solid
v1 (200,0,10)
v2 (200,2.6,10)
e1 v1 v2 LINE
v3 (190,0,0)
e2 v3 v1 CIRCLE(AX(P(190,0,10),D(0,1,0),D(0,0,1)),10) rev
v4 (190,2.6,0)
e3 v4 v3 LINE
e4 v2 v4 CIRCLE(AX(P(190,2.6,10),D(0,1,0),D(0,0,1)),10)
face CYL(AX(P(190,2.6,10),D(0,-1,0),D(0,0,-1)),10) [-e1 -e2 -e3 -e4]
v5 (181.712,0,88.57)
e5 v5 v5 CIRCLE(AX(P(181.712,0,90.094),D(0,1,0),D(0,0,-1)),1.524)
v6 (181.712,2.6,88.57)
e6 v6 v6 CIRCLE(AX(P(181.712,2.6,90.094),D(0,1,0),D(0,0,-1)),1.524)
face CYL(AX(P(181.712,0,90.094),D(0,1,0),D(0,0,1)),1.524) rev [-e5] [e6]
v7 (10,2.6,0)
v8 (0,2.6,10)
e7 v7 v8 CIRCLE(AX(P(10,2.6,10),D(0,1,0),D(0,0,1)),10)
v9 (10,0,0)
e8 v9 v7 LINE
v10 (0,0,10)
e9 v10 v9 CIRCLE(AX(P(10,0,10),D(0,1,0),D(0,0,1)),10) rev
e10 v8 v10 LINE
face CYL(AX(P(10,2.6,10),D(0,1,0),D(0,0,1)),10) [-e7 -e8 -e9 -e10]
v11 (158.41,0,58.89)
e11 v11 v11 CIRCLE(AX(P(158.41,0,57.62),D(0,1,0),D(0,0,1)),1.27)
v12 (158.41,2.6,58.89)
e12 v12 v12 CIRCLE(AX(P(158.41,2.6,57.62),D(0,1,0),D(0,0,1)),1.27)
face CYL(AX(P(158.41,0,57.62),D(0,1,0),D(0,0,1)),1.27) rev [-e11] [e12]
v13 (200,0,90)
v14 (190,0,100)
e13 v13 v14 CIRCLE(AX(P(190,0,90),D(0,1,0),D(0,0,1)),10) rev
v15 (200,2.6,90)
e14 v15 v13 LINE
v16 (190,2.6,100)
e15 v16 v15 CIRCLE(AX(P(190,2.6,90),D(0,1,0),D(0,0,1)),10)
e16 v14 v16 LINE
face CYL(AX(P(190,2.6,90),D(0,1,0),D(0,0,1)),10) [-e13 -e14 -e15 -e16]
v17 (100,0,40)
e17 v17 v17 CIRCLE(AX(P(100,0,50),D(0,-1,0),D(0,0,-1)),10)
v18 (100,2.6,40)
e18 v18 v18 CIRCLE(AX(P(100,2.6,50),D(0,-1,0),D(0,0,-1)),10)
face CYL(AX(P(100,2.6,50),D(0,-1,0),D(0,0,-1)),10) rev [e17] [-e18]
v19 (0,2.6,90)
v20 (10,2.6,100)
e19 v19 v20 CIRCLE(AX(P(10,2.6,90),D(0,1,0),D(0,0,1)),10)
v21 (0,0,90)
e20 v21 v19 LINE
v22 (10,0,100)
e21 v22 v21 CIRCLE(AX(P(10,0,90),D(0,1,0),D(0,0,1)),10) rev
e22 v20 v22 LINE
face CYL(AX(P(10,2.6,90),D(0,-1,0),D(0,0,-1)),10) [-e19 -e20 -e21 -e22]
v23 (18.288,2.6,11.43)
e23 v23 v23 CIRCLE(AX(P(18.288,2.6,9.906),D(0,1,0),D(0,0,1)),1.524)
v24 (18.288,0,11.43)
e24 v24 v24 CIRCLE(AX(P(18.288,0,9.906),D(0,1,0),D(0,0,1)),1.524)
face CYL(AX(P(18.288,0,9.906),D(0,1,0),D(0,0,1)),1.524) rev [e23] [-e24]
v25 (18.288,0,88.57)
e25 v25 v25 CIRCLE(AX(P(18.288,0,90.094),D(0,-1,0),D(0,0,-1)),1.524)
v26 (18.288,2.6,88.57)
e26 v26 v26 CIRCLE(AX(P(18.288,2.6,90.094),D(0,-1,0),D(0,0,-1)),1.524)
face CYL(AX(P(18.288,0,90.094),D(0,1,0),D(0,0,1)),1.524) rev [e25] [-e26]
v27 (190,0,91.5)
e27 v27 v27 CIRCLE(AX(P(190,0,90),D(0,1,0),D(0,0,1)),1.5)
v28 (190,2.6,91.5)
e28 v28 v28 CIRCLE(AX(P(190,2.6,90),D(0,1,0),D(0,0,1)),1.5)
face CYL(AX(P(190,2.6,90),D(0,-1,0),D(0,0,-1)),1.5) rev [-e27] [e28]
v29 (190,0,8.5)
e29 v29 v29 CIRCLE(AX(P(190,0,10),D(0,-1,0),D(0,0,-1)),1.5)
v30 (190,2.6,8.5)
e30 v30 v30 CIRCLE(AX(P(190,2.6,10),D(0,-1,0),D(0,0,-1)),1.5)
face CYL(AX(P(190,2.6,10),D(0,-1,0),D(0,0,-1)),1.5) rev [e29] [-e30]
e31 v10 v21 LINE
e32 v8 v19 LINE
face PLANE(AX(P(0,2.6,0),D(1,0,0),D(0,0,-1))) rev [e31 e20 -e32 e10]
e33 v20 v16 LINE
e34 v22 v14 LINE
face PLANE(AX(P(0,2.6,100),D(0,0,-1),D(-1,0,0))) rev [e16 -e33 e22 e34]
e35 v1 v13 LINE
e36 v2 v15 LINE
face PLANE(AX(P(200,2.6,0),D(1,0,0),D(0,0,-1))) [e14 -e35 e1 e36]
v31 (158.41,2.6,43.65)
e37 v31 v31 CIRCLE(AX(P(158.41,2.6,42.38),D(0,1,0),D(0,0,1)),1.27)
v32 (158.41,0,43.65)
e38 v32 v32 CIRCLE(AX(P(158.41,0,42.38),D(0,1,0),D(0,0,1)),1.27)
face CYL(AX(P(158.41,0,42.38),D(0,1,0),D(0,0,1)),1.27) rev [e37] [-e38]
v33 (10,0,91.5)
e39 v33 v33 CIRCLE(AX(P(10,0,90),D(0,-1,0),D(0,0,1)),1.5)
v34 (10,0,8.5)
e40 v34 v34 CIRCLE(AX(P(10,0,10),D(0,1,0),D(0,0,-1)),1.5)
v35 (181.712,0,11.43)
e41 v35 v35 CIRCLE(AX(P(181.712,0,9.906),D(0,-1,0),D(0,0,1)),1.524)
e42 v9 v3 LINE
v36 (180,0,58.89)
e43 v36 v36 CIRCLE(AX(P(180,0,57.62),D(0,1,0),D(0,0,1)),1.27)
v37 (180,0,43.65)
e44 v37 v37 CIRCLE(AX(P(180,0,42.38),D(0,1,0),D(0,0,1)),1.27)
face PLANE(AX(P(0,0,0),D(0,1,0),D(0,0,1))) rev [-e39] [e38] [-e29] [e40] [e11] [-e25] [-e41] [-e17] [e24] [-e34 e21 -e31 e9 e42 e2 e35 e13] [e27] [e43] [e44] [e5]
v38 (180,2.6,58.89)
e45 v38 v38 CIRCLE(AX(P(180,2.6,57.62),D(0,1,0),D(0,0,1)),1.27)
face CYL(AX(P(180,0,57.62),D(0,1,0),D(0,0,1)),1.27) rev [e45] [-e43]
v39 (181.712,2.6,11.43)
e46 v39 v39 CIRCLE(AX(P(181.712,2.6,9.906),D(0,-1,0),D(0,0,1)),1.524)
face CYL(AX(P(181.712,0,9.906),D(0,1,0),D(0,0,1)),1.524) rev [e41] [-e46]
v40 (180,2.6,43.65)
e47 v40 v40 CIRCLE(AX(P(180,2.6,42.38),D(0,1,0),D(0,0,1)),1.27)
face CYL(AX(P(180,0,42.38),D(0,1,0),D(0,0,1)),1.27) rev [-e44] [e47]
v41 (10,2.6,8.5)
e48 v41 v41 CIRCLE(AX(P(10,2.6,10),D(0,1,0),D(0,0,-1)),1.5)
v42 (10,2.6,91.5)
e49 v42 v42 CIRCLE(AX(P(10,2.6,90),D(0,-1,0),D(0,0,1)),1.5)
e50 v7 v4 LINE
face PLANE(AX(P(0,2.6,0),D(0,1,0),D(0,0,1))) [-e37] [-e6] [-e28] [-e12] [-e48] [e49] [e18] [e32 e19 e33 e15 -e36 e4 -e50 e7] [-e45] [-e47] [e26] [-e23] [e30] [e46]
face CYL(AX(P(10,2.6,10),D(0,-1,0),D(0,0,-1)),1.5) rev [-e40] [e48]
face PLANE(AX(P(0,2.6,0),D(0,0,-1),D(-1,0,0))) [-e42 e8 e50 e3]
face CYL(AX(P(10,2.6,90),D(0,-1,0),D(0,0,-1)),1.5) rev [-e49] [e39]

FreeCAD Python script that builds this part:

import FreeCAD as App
import Part
import Sketcher
Q = App.Units.Quantity


def edges_at(feature, points):
    """Names of the edges that pass closest to the given points."""
    edges = feature.Shape.Edges
    near = lambda p: min(range(len(edges)), key=lambda i: edges[i].distToShape(Part.Vertex(*p))[0])
    return sorted({f"Edge{near(p) + 1}" for p in points})


def add_polygon(sketch, points):
    """Adds a closed chain of lines whose ends are joined by coincident constraints."""
    first, n = sketch.GeometryCount, len(points)
    for a, b in zip(points, points[1:] + points[:1]):
        sketch.addGeometry(Part.LineSegment(App.Vector(*a, 0), App.Vector(*b, 0)), False)
    for i in range(n):
        sketch.addConstraint(Sketcher.Constraint("Coincident", first + i, 2, first + (i + 1) % n, 1))

doc = App.newDocument("Part")
body = doc.addObject("PartDesign::Body", "Body")

# Sketch on XZ plane
sketch1 = body.newObject("Sketcher::SketchObject", "Sketch")
sketch1.AttachmentSupport = (doc.getObject("XZ_Plane"), [""])
sketch1.MapMode = "FlatFace"
add_polygon(sketch1, [(0, 0), (0, 100), (200, 100), (200, 0)])  # lines 0-3
sketch1.addConstraint(Sketcher.Constraint("Vertical", 0))
sketch1.addConstraint(Sketcher.Constraint("Horizontal", 1))
sketch1.addConstraint(Sketcher.Constraint("Vertical", 2))
sketch1.addConstraint(Sketcher.Constraint("Horizontal", 3))
sketch1.addConstraint(Sketcher.Constraint("Coincident", 3, 2, -1, 1))
sketch1.addConstraint(Sketcher.Constraint("DistanceX", 1, 1, 1, 2, Q("200 mm")))
sketch1.addConstraint(Sketcher.Constraint("DistanceY", 0, 1, 0, 2, Q("100 mm")))
pad1 = body.newObject("PartDesign::Pad", "Pad")
pad1.Profile = sketch1
pad1.Length = 2.6
pad1.Reversed = True
doc.recompute()

fillet = body.newObject("PartDesign::Fillet", "Fillet")
fillet.Base = (pad1, edges_at(pad1, [
    (0, 1.3, 0),
    (200, 1.3, 0),
    (200, 1.3, 100),
    (0, 1.3, 100),
]))
fillet.Radius = 10

# Sketch on XZ plane
sketch2 = body.newObject("Sketcher::SketchObject", "Sketch001")
sketch2.AttachmentSupport = (doc.getObject("XZ_Plane"), [""])
sketch2.MapMode = "FlatFace"
sketch2.addGeometry(Part.Circle(App.Vector(190, 10, 0), App.Vector(0, 0, 1), 1.5), False)
sketch2.addConstraint(Sketcher.Constraint("Diameter", 0, Q("3 mm")))
sketch2.addConstraint(Sketcher.Constraint("DistanceX", -1, 1, 0, 3, Q("190 mm")))
sketch2.addConstraint(Sketcher.Constraint("DistanceY", -1, 1, 0, 3, Q("10 mm")))
pocket1 = body.newObject("PartDesign::Pocket", "Pocket")
pocket1.Profile = sketch2
pocket1.Length = 2.6
doc.recompute()

datumplane = body.newObject("PartDesign::Plane", "DatumPlane")
datumplane.AttachmentSupport = (doc.getObject("YZ_Plane"), [""])
datumplane.MapMode = "FlatFace"
datumplane.AttachmentOffset = App.Placement(App.Vector(0, 0, 100), App.Rotation())
mirrored = body.newObject("PartDesign::Mirrored", "Mirrored")
mirrored.Originals = [pocket1]
mirrored.MirrorPlane = (datumplane, [""])
body.Tip = mirrored
doc.recompute()

datumplane2 = body.newObject("PartDesign::Plane", "DatumPlane001")
datumplane2.AttachmentSupport = (doc.getObject("XY_Plane"), [""])
datumplane2.MapMode = "FlatFace"
datumplane2.AttachmentOffset = App.Placement(App.Vector(0, 0, 50), App.Rotation())
mirrored2 = body.newObject("PartDesign::Mirrored", "Mirrored001")
mirrored2.Originals = [pocket1]
mirrored2.MirrorPlane = (datumplane2, [""])
body.Tip = mirrored2

# Sketch on XZ plane
sketch3 = body.newObject("Sketcher::SketchObject", "Sketch002")
sketch3.AttachmentSupport = (doc.getObject("XZ_Plane"), [""])
sketch3.MapMode = "FlatFace"
sketch3.addGeometry(Part.Circle(App.Vector(10, 90, 0), App.Vector(0, 0, 1), 1.5), False)
sketch3.addConstraint(Sketcher.Constraint("Diameter", 0, Q("3 mm")))
sketch3.addConstraint(Sketcher.Constraint("DistanceX", -1, 1, 0, 3, Q("10 mm")))
sketch3.addConstraint(Sketcher.Constraint("DistanceY", -1, 1, 0, 3, Q("90 mm")))
pocket2 = body.newObject("PartDesign::Pocket", "Pocket001")
pocket2.Profile = sketch3
pocket2.Length = 2.6

# Sketch on XZ plane
sketch4 = body.newObject("Sketcher::SketchObject", "Sketch003")
sketch4.AttachmentSupport = (doc.getObject("XZ_Plane"), [""])
sketch4.MapMode = "FlatFace"
sketch4.addGeometry(Part.Circle(App.Vector(100, 50, 0), App.Vector(0, 0, 1), 10), False)
sketch4.addConstraint(Sketcher.Constraint("Diameter", 0, Q("20 mm")))
sketch4.addConstraint(Sketcher.Constraint("DistanceX", -1, 1, 0, 3, Q("100 mm")))
sketch4.addConstraint(Sketcher.Constraint("DistanceY", -1, 1, 0, 3, Q("50 mm")))
pocket3 = body.newObject("PartDesign::Pocket", "Pocket002")
pocket3.Profile = sketch4
pocket3.Type = "ThroughAll"

# Sketch on XZ plane
sketch5 = body.newObject("Sketcher::SketchObject", "Sketch004")
sketch5.AttachmentSupport = (doc.getObject("XZ_Plane"), [""])
sketch5.MapMode = "FlatFace"
sketch5.AttachmentOffset = App.Placement(App.Vector(0, 0, -2.6), App.Rotation())
sketch5.addGeometry(Part.Circle(App.Vector(158.4, 42.4, 0), App.Vector(0, 0, 1), 1.3), False)
sketch5.addGeometry(Part.Circle(App.Vector(180, 42.4, 0), App.Vector(0, 0, 1), 1.3), False)
sketch5.addGeometry(Part.Circle(App.Vector(158.4, 57.6, 0), App.Vector(0, 0, 1), 1.3), False)
sketch5.addGeometry(Part.Circle(App.Vector(180, 57.6, 0), App.Vector(0, 0, 1), 1.3), False)
sketch5.addConstraint(Sketcher.Constraint("Equal", 0, 1))
sketch5.addConstraint(Sketcher.Constraint("Equal", 1, 2))
sketch5.addConstraint(Sketcher.Constraint("Equal", 2, 3))
sketch5.addConstraint(Sketcher.Constraint("Horizontal", 0, 3, 1, 3))
sketch5.addConstraint(Sketcher.Constraint("Horizontal", 2, 3, 3, 3))
sketch5.addConstraint(Sketcher.Constraint("Vertical", 0, 3, 2, 3))
sketch5.addConstraint(Sketcher.Constraint("Vertical", 1, 3, 3, 3))
sketch5.addConstraint(Sketcher.Constraint("Diameter", 0, Q("2.54 mm")))
sketch5.addConstraint(Sketcher.Constraint("DistanceX", -1, 1, 1, 3, Q("180 mm")))
sketch5.addConstraint(Sketcher.Constraint("DistanceX", -1, 1, 0, 3, Q("158.41 mm")))
sketch5.addConstraint(Sketcher.Constraint("DistanceY", -1, 1, 0, 3, Q("42.38 mm")))
sketch5.addConstraint(Sketcher.Constraint("DistanceY", -1, 1, 2, 3, Q("57.62 mm")))
pocket4 = body.newObject("PartDesign::Pocket", "Pocket003")
pocket4.Profile = sketch5
pocket4.Type = "ThroughAll"
pocket4.Reversed = True

# Sketch on XZ plane
sketch6 = body.newObject("Sketcher::SketchObject", "Sketch005")
sketch6.AttachmentSupport = (doc.getObject("XZ_Plane"), [""])
sketch6.MapMode = "FlatFace"
sketch6.AttachmentOffset = App.Placement(App.Vector(0, 0, -2.6), App.Rotation())
sketch6.addGeometry(Part.Circle(App.Vector(18.3, 9.9, 0), App.Vector(0, 0, 1), 1.5), False)
sketch6.addConstraint(Sketcher.Constraint("Diameter", 0, Q("3.048 mm")))
sketch6.addConstraint(Sketcher.Constraint("DistanceX", -1, 1, 0, 3, Q("18.288 mm")))
sketch6.addConstraint(Sketcher.Constraint("DistanceY", -1, 1, 0, 3, Q("9.906 mm")))
pocket5 = body.newObject("PartDesign::Pocket", "Pocket004")
pocket5.Profile = sketch6
pocket5.Length = 2.6
pocket5.Reversed = True
doc.recompute()

datumplane3 = body.newObject("PartDesign::Plane", "DatumPlane002")
datumplane3.AttachmentSupport = (doc.getObject("YZ_Plane"), [""])
datumplane3.MapMode = "FlatFace"
datumplane3.AttachmentOffset = App.Placement(App.Vector(0, 0, 100), App.Rotation())
mirrored3 = body.newObject("PartDesign::Mirrored", "Mirrored002")
mirrored3.Originals = [pocket5]
mirrored3.MirrorPlane = (datumplane3, [""])
body.Tip = mirrored3
doc.recompute()

datumplane4 = body.newObject("PartDesign::Plane", "DatumPlane003")
datumplane4.AttachmentSupport = (doc.getObject("XY_Plane"), [""])
datumplane4.MapMode = "FlatFace"
datumplane4.AttachmentOffset = App.Placement(App.Vector(0, 0, 50), App.Rotation())
mirrored4 = body.newObject("PartDesign::Mirrored", "Mirrored003")
mirrored4.Originals = [pocket5]
mirrored4.MirrorPlane = (datumplane4, [""])
body.Tip = mirrored4

# Sketch on XZ plane
sketch7 = body.newObject("Sketcher::SketchObject", "Sketch006")
sketch7.AttachmentSupport = (doc.getObject("XZ_Plane"), [""])
sketch7.MapMode = "FlatFace"
sketch7.AttachmentOffset = App.Placement(App.Vector(0, 0, -2.6), App.Rotation())
sketch7.addGeometry(Part.Circle(App.Vector(181.7, 90.1, 0), App.Vector(0, 0, 1), 1.5), False)
sketch7.addConstraint(Sketcher.Constraint("Diameter", 0, Q("3.048 mm")))
sketch7.addConstraint(Sketcher.Constraint("DistanceX", -1, 1, 0, 3, Q("181.712 mm")))
sketch7.addConstraint(Sketcher.Constraint("DistanceY", -1, 1, 0, 3, Q("90.094 mm")))
pocket6 = body.newObject("PartDesign::Pocket", "Pocket005")
pocket6.Profile = sketch7
pocket6.Length = 2.6
pocket6.Reversed = True

doc.recompute()
